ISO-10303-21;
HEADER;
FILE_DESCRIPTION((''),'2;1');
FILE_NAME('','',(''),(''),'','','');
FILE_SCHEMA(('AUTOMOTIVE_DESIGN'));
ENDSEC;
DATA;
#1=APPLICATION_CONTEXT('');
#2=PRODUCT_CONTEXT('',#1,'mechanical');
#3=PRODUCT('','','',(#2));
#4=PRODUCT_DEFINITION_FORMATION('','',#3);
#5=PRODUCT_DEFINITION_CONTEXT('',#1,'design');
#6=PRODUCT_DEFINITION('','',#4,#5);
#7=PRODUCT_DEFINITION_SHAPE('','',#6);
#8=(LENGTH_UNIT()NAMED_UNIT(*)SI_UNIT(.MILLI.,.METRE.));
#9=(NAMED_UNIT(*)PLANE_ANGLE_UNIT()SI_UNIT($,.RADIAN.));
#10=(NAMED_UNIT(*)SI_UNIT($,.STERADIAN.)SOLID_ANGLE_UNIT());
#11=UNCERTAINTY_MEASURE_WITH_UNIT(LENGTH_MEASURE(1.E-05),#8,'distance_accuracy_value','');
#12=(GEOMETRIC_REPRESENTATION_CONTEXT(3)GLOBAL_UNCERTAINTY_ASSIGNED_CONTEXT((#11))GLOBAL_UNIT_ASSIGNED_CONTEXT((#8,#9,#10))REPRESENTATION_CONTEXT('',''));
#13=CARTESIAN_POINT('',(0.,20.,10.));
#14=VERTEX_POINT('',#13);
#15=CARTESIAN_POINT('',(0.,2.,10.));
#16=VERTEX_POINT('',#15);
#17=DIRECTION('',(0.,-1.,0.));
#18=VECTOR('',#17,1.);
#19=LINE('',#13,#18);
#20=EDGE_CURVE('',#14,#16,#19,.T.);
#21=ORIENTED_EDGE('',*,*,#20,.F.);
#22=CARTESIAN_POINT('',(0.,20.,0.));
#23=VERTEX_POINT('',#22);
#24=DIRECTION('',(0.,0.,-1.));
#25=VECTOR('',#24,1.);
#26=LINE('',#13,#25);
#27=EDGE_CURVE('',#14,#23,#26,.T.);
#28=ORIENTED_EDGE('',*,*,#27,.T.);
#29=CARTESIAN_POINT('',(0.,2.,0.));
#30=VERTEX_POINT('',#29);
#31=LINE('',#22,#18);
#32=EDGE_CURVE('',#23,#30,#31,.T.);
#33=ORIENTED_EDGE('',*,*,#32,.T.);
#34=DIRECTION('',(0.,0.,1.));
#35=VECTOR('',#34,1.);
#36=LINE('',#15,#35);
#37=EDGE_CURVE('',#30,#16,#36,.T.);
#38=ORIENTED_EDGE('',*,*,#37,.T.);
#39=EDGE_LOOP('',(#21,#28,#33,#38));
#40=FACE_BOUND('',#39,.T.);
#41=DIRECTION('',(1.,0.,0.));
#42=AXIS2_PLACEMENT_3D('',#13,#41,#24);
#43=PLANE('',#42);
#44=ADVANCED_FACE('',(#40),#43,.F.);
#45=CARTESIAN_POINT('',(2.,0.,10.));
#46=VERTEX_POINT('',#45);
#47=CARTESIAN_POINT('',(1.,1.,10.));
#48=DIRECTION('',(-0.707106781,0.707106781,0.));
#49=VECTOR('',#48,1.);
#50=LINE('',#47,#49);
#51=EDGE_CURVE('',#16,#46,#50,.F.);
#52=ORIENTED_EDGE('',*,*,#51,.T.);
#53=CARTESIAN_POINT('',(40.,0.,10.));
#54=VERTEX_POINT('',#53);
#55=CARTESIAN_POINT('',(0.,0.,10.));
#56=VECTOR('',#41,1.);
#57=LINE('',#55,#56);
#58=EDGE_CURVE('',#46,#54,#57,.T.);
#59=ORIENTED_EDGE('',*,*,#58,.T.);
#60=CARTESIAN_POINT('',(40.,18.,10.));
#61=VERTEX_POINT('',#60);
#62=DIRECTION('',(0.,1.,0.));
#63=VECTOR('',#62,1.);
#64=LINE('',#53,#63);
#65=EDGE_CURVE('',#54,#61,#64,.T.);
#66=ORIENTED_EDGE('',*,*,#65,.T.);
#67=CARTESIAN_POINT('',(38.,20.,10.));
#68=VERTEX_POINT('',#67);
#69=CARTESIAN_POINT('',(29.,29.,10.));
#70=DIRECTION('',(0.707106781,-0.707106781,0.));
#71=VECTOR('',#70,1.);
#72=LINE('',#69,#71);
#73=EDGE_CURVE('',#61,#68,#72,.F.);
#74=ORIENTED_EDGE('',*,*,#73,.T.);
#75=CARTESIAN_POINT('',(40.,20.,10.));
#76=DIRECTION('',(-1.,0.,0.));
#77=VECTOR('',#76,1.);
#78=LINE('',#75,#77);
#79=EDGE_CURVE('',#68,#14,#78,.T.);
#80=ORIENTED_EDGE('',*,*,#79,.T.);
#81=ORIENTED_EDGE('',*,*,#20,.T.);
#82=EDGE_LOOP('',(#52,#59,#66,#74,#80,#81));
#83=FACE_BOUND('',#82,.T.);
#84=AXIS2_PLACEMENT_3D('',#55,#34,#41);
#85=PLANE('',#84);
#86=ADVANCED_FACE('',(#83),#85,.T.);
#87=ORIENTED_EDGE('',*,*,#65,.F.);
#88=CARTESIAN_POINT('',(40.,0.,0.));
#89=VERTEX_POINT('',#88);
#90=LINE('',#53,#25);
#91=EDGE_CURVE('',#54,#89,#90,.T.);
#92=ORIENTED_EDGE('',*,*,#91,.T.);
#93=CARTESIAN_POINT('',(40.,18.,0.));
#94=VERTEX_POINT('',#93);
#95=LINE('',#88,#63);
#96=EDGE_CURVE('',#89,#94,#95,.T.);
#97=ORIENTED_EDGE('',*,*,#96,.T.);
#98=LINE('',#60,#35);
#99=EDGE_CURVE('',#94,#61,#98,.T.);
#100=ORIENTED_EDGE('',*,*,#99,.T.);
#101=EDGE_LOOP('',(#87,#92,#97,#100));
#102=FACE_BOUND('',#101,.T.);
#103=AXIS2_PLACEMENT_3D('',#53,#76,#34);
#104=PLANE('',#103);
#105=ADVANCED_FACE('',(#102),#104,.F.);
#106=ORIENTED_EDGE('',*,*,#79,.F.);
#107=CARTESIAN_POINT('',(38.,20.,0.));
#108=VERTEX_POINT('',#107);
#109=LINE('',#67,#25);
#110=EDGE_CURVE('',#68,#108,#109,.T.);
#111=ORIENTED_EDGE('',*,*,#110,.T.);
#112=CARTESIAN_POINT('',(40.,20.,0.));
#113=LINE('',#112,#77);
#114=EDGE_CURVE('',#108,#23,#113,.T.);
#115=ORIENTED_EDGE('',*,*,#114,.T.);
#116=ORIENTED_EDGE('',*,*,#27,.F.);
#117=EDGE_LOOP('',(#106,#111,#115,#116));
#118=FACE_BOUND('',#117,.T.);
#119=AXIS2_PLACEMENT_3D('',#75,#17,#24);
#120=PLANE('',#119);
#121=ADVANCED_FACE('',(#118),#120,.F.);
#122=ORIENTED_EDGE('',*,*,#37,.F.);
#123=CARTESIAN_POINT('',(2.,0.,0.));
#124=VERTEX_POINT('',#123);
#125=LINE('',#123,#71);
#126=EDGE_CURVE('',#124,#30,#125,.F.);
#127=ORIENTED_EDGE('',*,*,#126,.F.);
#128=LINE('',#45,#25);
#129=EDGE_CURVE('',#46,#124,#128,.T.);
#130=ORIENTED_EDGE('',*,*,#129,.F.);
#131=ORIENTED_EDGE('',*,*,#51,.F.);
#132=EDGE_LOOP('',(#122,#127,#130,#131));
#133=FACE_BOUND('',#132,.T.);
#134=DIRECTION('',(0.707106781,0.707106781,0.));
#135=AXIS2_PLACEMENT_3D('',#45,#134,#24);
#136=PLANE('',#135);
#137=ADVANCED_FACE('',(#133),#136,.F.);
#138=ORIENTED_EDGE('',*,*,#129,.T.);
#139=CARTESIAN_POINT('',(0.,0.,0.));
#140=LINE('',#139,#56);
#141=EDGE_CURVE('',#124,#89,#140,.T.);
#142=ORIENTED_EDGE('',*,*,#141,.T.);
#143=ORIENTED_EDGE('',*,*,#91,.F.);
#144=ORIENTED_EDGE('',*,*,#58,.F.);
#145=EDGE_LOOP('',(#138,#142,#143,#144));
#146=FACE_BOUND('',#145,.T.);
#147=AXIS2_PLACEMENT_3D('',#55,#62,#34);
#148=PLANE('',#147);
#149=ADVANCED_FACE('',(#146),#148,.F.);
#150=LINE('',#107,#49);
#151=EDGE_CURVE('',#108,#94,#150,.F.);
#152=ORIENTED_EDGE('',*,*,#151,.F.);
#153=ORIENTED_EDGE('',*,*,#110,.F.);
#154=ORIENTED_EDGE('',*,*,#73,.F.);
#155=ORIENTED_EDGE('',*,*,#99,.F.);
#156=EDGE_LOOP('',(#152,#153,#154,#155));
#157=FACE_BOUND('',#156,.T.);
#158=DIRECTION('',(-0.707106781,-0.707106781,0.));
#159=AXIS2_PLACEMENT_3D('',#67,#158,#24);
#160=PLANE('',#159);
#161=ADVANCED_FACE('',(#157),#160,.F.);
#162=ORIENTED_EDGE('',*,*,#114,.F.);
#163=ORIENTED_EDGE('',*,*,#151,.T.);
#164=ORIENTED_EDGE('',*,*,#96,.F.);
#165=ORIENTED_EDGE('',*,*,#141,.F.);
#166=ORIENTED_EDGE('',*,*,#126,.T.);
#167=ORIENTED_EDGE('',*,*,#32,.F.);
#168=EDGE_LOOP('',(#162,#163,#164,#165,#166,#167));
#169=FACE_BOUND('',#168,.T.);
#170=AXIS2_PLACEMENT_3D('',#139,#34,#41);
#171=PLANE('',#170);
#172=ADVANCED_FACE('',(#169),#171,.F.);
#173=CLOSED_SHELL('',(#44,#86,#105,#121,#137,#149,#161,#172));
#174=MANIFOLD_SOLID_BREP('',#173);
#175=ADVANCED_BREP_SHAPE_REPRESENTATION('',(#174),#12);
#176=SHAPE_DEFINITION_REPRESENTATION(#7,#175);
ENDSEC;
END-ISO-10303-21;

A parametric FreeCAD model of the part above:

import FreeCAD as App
import Part
import Sketcher

V = App.Vector


def edges_at(feature, points):
    """Names of the edges that pass closest to the given points."""
    edges = feature.Shape.Edges
    near = lambda p: min(range(len(edges)), key=lambda i: edges[i].distToShape(Part.Vertex(*p))[0])
    return sorted({f"Edge{near(p) + 1}" for p in points})


def add_polygon(sketch, points):
    """Adds a closed chain of lines whose ends are joined by coincident constraints."""
    first, n = sketch.GeometryCount, len(points)
    for a, b in zip(points, points[1:] + points[:1]):
        sketch.addGeometry(Part.LineSegment(App.Vector(*a, 0), App.Vector(*b, 0)), False)
    for i in range(n):
        sketch.addConstraint(Sketcher.Constraint("Coincident", first + i, 2, first + (i + 1) % n, 1))

doc = App.newDocument("Part")
body = doc.addObject("PartDesign::Body", "Body")

# Sketch on XY plane
sketch1 = doc.addObject("Sketcher::SketchObject", "Sketch")
body.addObject(sketch1)
sketch1.AttachmentSupport = (doc.XY_Plane, [""])
sketch1.MapMode = "FlatFace"
add_polygon(sketch1, [(0, 20), (0, 0), (40, 0), (40, 20)])  # lines 0-3
sketch1.addConstraint([
    Sketcher.Constraint("Vertical", 0),
    Sketcher.Constraint("Horizontal", 1),
    Sketcher.Constraint("Vertical", 2),
    Sketcher.Constraint("Horizontal", 3),
    Sketcher.Constraint("Coincident", 0, 2, -1, 1),
    Sketcher.Constraint("DistanceX", 1, 1, 1, 2, 40.0),
    Sketcher.Constraint("DistanceY", 0, 2, 0, 1, 20.0),
])
pad1 = doc.addObject("PartDesign::Pad", "Pad")
body.addObject(pad1)
pad1.Profile = sketch1
pad1.Length = 10
doc.recompute()

chamfer = doc.addObject("PartDesign::Chamfer", "Chamfer")
body.addObject(chamfer)
chamfer.Base = (pad1, edges_at(pad1, [(40, 20, 5), (0, 0, 5)]))
chamfer.Size = 2

doc.recompute()
